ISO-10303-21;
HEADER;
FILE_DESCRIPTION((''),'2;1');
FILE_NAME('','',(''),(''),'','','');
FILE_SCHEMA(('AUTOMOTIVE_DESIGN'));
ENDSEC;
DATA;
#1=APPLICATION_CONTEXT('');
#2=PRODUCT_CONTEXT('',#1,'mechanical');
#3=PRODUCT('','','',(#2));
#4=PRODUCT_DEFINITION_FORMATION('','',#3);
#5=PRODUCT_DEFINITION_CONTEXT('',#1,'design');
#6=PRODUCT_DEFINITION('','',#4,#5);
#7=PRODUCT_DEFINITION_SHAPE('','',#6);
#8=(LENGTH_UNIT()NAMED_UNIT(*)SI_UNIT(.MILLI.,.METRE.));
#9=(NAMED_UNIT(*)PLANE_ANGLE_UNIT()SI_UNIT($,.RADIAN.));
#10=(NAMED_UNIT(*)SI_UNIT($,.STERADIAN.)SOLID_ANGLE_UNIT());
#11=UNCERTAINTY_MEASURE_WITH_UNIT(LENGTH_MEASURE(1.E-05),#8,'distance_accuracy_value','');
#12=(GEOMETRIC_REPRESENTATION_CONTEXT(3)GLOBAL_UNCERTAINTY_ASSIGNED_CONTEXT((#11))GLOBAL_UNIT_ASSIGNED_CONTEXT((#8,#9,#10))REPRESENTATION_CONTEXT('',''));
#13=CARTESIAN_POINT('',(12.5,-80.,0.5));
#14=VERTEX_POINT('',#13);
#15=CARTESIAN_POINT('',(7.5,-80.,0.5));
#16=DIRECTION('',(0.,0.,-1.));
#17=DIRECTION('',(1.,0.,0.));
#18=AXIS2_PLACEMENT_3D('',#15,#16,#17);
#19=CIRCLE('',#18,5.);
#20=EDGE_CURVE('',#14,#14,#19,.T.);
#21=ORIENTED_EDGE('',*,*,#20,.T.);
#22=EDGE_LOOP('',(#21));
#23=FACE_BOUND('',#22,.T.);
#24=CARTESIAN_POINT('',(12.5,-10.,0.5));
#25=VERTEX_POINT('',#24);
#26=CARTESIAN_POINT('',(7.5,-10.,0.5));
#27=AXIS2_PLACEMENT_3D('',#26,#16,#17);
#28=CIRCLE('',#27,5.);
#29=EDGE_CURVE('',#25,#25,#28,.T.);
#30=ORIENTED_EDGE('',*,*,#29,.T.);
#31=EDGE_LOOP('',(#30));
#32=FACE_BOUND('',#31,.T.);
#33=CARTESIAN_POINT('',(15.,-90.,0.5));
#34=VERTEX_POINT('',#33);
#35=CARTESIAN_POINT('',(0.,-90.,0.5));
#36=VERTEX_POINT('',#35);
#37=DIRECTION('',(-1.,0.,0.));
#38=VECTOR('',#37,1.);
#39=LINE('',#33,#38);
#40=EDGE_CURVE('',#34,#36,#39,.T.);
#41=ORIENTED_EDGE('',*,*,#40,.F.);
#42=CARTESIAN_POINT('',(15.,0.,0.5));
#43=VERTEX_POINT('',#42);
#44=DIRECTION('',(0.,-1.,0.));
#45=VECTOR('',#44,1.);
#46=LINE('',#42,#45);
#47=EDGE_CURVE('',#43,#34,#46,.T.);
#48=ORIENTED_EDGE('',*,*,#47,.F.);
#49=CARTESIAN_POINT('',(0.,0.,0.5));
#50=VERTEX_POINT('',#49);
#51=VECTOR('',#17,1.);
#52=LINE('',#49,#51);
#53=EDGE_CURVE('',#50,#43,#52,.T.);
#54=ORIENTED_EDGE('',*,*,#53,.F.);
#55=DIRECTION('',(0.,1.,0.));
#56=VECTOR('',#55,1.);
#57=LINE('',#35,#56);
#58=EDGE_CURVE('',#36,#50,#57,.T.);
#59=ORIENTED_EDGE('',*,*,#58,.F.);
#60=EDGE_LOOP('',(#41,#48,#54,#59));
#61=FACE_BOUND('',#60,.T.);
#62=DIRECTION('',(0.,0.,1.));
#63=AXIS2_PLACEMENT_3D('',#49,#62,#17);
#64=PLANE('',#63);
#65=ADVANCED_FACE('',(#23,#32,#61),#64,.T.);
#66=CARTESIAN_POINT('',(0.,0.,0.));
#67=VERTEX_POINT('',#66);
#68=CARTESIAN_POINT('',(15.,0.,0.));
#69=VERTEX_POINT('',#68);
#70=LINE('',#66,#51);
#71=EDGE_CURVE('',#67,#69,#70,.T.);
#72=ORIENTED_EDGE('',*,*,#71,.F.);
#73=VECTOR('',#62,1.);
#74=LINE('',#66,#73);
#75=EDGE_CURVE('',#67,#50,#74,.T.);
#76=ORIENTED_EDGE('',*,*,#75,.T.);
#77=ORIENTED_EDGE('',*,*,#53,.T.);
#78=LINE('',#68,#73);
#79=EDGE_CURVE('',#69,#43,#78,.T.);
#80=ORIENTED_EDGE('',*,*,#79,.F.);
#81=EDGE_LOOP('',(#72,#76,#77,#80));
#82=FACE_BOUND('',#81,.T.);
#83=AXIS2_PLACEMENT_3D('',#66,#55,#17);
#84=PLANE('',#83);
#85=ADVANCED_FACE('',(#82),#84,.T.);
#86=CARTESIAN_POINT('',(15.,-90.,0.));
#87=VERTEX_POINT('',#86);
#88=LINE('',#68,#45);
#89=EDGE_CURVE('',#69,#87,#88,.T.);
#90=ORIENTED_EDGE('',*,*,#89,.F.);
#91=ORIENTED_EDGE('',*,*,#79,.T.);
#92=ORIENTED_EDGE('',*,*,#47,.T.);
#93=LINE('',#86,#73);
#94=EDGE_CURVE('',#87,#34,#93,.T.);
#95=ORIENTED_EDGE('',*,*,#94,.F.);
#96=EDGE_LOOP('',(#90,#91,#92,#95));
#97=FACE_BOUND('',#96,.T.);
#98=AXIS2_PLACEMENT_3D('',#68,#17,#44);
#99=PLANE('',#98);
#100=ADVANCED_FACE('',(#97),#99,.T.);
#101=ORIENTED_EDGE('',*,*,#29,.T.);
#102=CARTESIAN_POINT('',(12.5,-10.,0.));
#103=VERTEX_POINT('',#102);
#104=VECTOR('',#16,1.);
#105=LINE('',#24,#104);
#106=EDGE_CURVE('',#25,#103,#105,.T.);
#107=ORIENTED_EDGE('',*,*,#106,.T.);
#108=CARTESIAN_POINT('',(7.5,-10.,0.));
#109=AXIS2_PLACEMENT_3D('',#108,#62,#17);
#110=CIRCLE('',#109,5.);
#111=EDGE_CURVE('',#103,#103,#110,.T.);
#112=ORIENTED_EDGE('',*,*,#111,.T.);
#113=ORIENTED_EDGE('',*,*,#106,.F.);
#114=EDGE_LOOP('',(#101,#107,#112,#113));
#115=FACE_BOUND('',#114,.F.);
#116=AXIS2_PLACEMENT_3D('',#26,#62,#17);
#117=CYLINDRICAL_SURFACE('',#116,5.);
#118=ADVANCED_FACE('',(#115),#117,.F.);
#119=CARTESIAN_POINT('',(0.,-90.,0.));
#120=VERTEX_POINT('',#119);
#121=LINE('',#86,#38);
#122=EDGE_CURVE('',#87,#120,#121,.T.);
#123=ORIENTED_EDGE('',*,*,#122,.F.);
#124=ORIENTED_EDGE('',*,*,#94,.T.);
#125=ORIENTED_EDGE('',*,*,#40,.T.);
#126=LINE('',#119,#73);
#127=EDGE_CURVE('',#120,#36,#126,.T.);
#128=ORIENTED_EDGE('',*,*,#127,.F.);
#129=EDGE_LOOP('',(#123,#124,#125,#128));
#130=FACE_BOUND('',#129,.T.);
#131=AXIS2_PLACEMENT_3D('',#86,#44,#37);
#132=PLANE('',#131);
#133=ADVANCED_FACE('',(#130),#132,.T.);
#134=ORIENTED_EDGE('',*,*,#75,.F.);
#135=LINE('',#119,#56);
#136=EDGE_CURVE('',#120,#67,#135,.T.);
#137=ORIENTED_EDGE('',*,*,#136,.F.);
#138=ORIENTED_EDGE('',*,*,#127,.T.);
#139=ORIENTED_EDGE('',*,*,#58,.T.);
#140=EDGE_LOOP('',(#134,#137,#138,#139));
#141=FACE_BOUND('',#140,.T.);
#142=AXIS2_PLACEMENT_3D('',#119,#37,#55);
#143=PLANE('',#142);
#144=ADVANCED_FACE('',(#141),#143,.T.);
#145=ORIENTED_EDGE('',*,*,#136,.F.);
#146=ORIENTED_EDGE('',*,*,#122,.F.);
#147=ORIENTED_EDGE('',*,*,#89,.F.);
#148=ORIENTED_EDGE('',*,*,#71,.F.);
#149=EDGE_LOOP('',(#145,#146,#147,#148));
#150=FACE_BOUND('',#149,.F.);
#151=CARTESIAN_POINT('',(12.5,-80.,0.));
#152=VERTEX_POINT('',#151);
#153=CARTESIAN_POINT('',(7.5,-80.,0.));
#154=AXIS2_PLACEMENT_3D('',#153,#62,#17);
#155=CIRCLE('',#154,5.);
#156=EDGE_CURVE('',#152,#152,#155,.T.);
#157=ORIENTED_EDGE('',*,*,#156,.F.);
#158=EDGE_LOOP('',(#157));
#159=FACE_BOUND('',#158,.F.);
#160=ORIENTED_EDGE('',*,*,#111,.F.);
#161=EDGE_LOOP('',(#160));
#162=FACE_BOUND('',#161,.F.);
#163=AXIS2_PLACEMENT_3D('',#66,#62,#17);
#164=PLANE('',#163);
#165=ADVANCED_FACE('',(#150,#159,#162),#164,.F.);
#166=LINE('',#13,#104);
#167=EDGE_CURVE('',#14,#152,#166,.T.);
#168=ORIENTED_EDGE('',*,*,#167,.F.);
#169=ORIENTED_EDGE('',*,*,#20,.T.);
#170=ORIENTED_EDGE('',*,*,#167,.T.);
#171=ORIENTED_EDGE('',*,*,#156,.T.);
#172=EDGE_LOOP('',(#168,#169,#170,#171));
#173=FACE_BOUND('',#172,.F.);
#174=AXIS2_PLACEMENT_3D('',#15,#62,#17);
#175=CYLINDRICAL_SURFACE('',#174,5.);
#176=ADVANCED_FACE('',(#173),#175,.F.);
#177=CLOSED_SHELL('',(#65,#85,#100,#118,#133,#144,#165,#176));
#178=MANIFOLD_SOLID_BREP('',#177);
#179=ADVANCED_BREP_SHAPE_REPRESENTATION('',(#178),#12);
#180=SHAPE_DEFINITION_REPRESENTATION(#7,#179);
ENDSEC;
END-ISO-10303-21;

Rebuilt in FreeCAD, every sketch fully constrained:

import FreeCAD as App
import Part
import Sketcher
from FreeCAD import Vector
Q = App.Units.Quantity


def add_polygon(sketch, points):
    """Adds a closed chain of lines whose ends are joined by coincident constraints."""
    first, n = sketch.GeometryCount, len(points)
    for a, b in zip(points, points[1:] + points[:1]):
        sketch.addGeometry(Part.LineSegment(App.Vector(*a, 0), App.Vector(*b, 0)), False)
    for i in range(n):
        sketch.addConstraint(Sketcher.Constraint("Coincident", first + i, 2, first + (i + 1) % n, 1))

doc = App.newDocument("Part")
body = doc.addObject("PartDesign::Body", "Body")

# Sketch on XY plane
sketch1 = body.newObject("Sketcher::SketchObject", "Sketch")
sketch1.AttachmentSupport = (doc.getObject("XY_Plane"), [""])
sketch1.MapMode = "FlatFace"
add_polygon(sketch1, [(15, 0), (0, 0), (0, -90), (15, -90)])  # lines 0-3
sketch1.addConstraint([
    Sketcher.Constraint("Horizontal", 0),
    Sketcher.Constraint("Vertical", 1),
    Sketcher.Constraint("Horizontal", 2),
    Sketcher.Constraint("Vertical", 3),
    Sketcher.Constraint("Coincident", 0, 2, -1, 1),
    Sketcher.Constraint("DistanceX", 0, 2, 0, 1, Q("15 mm")),
    Sketcher.Constraint("DistanceY", 1, 2, 1, 1, Q("90 mm")),
])
pad1 = body.newObject("PartDesign::Pad", "Pad")
pad1.Profile = sketch1
pad1.Length = 0.5

# Sketch on XY plane
sketch2 = body.newObject("Sketcher::SketchObject", "Sketch001")
sketch2.AttachmentSupport = (doc.getObject("XY_Plane"), [""])
sketch2.MapMode = "FlatFace"
sketch2.AttachmentOffset = App.Placement(Vector(0, 0, 0.5), App.Rotation())
sketch2.addGeometry([
    Part.Circle(Vector(8, -10, 0), Vector(0, 0, 1), 5),
    Part.Circle(Vector(8, -80, 0), Vector(0, 0, 1), 5),
], False)
sketch2.addConstraint([
    Sketcher.Constraint("Equal", 0, 1),
    Sketcher.Constraint("Vertical", 0, 3, 1, 3),
    Sketcher.Constraint("Diameter", 0, Q("10 mm")),
    Sketcher.Constraint("DistanceY", 0, 3, -1, 1, Q("10 mm")),
    Sketcher.Constraint("DistanceY", 1, 3, -1, 1, Q("80 mm")),
    Sketcher.Constraint("DistanceX", -1, 1, 0, 3, Q("7.5 mm")),
])
pocket1 = body.newObject("PartDesign::Pocket", "Pocket")
pocket1.Profile = sketch2
pocket1.Length = 10

doc.recompute()
